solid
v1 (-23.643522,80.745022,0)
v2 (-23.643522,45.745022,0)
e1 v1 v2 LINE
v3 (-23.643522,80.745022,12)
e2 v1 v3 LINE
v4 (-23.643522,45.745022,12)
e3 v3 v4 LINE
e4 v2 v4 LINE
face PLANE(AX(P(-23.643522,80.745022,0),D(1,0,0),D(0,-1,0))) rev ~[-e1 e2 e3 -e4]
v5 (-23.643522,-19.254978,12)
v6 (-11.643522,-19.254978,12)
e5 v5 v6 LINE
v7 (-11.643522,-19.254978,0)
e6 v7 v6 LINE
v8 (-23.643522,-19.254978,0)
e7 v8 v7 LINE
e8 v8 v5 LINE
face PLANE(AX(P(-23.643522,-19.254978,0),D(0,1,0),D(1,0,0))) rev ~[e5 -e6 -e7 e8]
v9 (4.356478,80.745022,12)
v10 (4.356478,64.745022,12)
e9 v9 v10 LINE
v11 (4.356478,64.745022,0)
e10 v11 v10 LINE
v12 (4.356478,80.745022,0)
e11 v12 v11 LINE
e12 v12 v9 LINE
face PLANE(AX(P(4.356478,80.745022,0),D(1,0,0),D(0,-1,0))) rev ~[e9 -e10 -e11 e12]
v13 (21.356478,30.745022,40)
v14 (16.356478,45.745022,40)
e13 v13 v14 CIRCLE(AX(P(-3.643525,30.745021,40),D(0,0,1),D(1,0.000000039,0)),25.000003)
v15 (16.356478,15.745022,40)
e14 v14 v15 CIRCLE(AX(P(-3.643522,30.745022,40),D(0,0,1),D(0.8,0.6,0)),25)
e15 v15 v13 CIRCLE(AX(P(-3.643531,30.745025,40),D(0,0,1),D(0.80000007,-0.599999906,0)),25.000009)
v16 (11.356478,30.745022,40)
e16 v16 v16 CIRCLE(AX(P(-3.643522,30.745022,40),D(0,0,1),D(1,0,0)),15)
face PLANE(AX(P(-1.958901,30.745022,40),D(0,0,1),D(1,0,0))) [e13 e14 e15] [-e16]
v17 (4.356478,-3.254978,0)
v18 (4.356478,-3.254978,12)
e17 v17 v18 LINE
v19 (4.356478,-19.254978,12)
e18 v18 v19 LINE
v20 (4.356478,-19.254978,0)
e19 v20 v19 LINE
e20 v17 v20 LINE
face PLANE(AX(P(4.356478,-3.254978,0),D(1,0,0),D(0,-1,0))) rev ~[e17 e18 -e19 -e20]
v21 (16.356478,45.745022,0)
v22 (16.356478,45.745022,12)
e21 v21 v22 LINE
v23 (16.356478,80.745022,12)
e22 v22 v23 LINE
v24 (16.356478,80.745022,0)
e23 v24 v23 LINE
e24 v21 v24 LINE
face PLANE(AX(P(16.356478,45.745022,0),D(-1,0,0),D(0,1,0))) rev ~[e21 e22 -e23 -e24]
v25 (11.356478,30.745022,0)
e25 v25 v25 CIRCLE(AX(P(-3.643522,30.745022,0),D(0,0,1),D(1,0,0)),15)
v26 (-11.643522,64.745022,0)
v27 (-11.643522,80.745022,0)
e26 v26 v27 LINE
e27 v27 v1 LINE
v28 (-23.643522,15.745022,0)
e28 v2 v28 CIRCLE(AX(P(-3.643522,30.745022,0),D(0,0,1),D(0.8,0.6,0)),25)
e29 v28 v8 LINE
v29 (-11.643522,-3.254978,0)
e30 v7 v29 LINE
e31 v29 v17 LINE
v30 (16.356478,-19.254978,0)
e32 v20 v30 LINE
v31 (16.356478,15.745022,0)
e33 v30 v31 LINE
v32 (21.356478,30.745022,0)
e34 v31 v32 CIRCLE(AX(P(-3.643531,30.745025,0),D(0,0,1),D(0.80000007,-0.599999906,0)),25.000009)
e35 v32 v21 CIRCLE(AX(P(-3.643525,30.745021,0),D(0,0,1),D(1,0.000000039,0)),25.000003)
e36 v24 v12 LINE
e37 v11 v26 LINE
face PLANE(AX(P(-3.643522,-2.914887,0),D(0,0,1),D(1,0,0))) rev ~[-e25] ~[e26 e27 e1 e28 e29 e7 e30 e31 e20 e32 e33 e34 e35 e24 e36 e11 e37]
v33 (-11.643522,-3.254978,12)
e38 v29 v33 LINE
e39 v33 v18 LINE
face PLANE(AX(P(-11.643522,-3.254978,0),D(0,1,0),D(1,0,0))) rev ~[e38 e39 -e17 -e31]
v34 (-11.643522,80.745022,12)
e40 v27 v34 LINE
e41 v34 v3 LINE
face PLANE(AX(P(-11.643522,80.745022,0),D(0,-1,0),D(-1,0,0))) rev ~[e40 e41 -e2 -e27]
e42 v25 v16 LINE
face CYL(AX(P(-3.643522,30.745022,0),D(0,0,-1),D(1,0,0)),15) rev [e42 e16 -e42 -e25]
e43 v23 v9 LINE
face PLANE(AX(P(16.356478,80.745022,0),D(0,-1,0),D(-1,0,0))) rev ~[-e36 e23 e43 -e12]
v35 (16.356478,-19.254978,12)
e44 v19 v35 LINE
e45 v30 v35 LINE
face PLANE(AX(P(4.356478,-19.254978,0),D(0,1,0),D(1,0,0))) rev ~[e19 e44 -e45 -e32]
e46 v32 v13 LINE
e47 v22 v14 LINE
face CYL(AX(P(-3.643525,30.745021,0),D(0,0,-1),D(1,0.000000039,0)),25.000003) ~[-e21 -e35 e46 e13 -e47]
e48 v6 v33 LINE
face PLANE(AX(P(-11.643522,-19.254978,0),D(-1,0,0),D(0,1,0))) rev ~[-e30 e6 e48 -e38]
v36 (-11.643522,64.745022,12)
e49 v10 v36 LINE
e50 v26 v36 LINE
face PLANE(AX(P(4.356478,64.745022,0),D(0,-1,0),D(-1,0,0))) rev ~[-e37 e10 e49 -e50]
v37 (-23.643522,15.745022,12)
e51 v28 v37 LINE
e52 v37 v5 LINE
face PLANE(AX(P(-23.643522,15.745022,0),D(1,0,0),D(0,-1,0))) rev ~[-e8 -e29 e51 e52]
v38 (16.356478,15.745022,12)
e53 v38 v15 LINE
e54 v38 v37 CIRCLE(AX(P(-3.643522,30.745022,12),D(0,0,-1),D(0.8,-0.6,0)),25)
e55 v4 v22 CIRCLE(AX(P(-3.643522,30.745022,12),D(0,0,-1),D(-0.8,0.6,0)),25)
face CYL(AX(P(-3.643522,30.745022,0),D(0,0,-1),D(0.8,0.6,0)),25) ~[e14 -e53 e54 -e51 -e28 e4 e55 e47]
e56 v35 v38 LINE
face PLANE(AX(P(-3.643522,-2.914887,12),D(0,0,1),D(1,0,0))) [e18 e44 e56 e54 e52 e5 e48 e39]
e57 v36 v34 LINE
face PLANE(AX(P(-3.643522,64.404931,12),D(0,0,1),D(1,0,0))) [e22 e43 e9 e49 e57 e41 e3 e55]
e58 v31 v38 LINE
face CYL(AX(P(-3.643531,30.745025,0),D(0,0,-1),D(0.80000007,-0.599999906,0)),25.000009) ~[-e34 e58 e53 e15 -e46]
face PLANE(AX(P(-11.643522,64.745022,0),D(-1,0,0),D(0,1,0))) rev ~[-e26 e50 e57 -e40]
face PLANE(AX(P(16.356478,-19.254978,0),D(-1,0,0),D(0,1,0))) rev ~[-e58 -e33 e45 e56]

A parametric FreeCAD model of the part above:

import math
import FreeCAD as App
import Part
import Sketcher

V = App.Vector
Q = App.Units.Quantity

doc = App.newDocument("Part")
body = doc.addObject("PartDesign::Body", "Body")

sketch1 = body.newObject("Sketcher::SketchObject", "Sketch")
sketch1.AttachmentSupport = (doc.getObject("XY_Plane"), [""])
sketch1.MapMode = "FlatFace"
sketch1.addGeometry([
    Part.ArcOfCircle(Part.Circle(V(-4, 31, 0), V(0, 0, 1), 25), math.radians(-37), math.radians(0)),
    Part.ArcOfCircle(Part.Circle(V(-4, 31, 0), V(0, 0, 1), 25), math.radians(0), math.radians(37)),
    Part.ArcOfCircle(Part.Circle(V(-4, 31, 0), V(0, 0, 1), 25), math.radians(37), math.radians(323)),
    Part.Circle(V(-4, 31, 0), V(0, 0, 1), 15),
], False)
sketch1.addConstraint([
    Sketcher.Constraint("Tangent", 0, 2, 1, 1),
    Sketcher.Constraint("Tangent", 1, 2, 2, 1),
    Sketcher.Constraint("Tangent", 2, 2, 0, 1),
    Sketcher.Constraint("Coincident", 3, 3, 0, 3),
    Sketcher.Constraint("Horizontal", 3, 3, 0, 2),
    Sketcher.Constraint("Vertical", 1, 2, 2, 2),
    Sketcher.Constraint("Diameter", 3, Q("30 mm")),
    Sketcher.Constraint("Radius", 2, Q("25 mm")),
    Sketcher.Constraint("DistanceX", 1, 2, 0, 2, Q("5 mm")),
    Sketcher.Constraint("DistanceX", 0, 3, -1, 1, Q("3.643531 mm")),
    Sketcher.Constraint("DistanceY", -1, 1, 1, 3, Q("30.745021 mm")),
])
pad1 = body.newObject("PartDesign::Pad", "Pad")
pad1.Profile = sketch1
pad1.Length = 40

sketch2 = body.newObject("Sketcher::SketchObject", "Sketch001")
sketch2.AttachmentSupport = (doc.getObject("XY_Plane"), [""])
sketch2.MapMode = "FlatFace"
sketch2.addGeometry([
    Part.LineSegment(V(-24, 16, 0), V(-24, -19, 0)),
    Part.LineSegment(V(-24, -19, 0), V(-12, -19, 0)),
    Part.LineSegment(V(-12, -19, 0), V(-12, -3, 0)),
    Part.LineSegment(V(-12, -3, 0), V(4, -3, 0)),
    Part.LineSegment(V(4, -3, 0), V(4, -19, 0)),
    Part.LineSegment(V(4, -19, 0), V(16, -19, 0)),
    Part.LineSegment(V(16, -19, 0), V(16, 16, 0)),
    Part.ArcOfCircle(Part.Circle(V(-4, 31, 0), V(0, 0, 1), 25), math.radians(-143), math.radians(-37)),
    Part.LineSegment(V(-24, 81, 0), V(-24, 46, 0)),
    Part.ArcOfCircle(Part.Circle(V(-4, 31, 0), V(0, 0, 1), 25), math.radians(37), math.radians(143)),
    Part.LineSegment(V(16, 46, 0), V(16, 81, 0)),
    Part.LineSegment(V(16, 81, 0), V(4, 81, 0)),
    Part.LineSegment(V(4, 81, 0), V(4, 65, 0)),
    Part.LineSegment(V(4, 65, 0), V(-12, 65, 0)),
    Part.LineSegment(V(-12, 65, 0), V(-12, 81, 0)),
    Part.LineSegment(V(-12, 81, 0), V(-24, 81, 0)),
], False)
sketch2.addConstraint([
    Sketcher.Constraint("Coincident", 0, 2, 1, 1),
    Sketcher.Constraint("Coincident", 1, 2, 2, 1),
    Sketcher.Constraint("Coincident", 2, 2, 3, 1),
    Sketcher.Constraint("Coincident", 3, 2, 4, 1),
    Sketcher.Constraint("Coincident", 4, 2, 5, 1),
    Sketcher.Constraint("Coincident", 5, 2, 6, 1),
    Sketcher.Constraint("Coincident", 6, 2, 7, 2),
    Sketcher.Constraint("Coincident", 7, 1, 0, 1),
    Sketcher.Constraint("Coincident", 8, 2, 9, 2),
    Sketcher.Constraint("Coincident", 9, 1, 10, 1),
    Sketcher.Constraint("Coincident", 10, 2, 11, 1),
    Sketcher.Constraint("Coincident", 11, 2, 12, 1),
    Sketcher.Constraint("Coincident", 12, 2, 13, 1),
    Sketcher.Constraint("Coincident", 13, 2, 14, 1),
    Sketcher.Constraint("Coincident", 14, 2, 15, 1),
    Sketcher.Constraint("Coincident", 15, 2, 8, 1),
    Sketcher.Constraint("Vertical", 0),
    Sketcher.Constraint("Horizontal", 1),
    Sketcher.Constraint("Vertical", 2),
    Sketcher.Constraint("Horizontal", 3),
    Sketcher.Constraint("Vertical", 4),
    Sketcher.Constraint("Horizontal", 5),
    Sketcher.Constraint("Vertical", 6),
    Sketcher.Constraint("Vertical", 8),
    Sketcher.Constraint("Vertical", 10),
    Sketcher.Constraint("Horizontal", 11),
    Sketcher.Constraint("Vertical", 12),
    Sketcher.Constraint("Horizontal", 13),
    Sketcher.Constraint("Vertical", 14),
    Sketcher.Constraint("Horizontal", 15),
    Sketcher.Constraint("Coincident", 9, 3, 7, 3),
    Sketcher.Constraint("Equal", 7, 9),
    Sketcher.Constraint("Horizontal", 1, 2, 4, 2),
    Sketcher.Constraint("Horizontal", 6, 2, 7, 1),
    Sketcher.Constraint("Horizontal", 8, 2, 9, 1),
    Sketcher.Constraint("Horizontal", 11, 2, 14, 2),
    Sketcher.Constraint("Vertical", 7, 1, 8, 2),
    Sketcher.Constraint("Vertical", 4, 2, 11, 2),
    Sketcher.Constraint("Vertical", 2, 2, 13, 2),
    Sketcher.Constraint("Equal", 1, 5),
    Sketcher.Constraint("Equal", 13, 2),
    Sketcher.Constraint("Equal", 6, 8),
    Sketcher.Constraint("Equal", 4, 12),
    Sketcher.Constraint("Radius", 7, Q("25 mm")),
    Sketcher.Constraint("DistanceX", 1, 1, 1, 2, Q("12 mm")),
    Sketcher.Constraint("DistanceX", 3, 1, 3, 2, Q("16 mm")),
    Sketcher.Constraint("DistanceY", 0, 2, 0, 1, Q("35 mm")),
    Sketcher.Constraint("DistanceX", 7, 3, -1, 1, Q("3.643522 mm")),
    Sketcher.Constraint("DistanceY", -1, 1, 7, 3, Q("30.745022 mm")),
])
pad2 = body.newObject("PartDesign::Pad", "Pad001")
pad2.Profile = sketch2
pad2.Length = 12

doc.recompute()
